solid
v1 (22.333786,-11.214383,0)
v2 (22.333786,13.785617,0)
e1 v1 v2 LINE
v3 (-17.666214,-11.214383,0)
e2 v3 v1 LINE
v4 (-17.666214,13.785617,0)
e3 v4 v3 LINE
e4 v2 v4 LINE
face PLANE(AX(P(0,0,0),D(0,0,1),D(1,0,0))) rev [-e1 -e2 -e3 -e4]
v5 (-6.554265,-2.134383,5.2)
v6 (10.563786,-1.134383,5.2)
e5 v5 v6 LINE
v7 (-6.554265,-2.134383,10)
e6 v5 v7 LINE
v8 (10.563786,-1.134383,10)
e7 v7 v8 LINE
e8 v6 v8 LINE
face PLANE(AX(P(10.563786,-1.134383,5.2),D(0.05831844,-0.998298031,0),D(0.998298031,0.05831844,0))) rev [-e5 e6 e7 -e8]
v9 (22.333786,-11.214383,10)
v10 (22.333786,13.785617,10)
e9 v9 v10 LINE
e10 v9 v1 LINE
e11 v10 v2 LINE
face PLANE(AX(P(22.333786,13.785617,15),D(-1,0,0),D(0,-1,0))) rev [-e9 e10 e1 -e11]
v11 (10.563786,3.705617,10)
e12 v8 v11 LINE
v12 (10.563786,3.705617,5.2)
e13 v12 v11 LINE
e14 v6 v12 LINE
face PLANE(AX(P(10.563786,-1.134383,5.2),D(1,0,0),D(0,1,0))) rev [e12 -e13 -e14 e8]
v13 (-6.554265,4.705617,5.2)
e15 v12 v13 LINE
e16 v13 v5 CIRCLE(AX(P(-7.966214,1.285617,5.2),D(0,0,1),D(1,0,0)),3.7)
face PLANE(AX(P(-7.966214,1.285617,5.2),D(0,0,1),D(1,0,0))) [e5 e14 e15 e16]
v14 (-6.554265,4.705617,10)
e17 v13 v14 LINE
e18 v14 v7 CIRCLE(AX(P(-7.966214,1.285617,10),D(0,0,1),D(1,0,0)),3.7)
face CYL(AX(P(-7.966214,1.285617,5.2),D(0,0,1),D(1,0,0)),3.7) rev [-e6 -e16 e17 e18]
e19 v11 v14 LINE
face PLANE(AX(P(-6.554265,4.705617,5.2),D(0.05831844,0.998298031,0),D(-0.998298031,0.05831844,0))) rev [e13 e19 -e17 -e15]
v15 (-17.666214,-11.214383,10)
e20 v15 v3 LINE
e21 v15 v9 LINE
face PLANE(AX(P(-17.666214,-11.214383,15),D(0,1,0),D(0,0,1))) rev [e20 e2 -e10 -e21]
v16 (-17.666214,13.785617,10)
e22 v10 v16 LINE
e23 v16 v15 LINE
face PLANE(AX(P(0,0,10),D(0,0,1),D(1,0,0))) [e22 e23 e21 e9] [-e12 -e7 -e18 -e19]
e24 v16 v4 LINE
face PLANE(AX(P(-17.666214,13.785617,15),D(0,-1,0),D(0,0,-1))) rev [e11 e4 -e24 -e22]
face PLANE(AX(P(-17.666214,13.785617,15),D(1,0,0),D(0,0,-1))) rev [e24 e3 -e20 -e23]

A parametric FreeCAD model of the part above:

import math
import FreeCAD as App
import Part
import Sketcher
from FreeCAD import Vector
Q = App.Units.Quantity

doc = App.newDocument("Part")
params = doc.addObject("Spreadsheet::Sheet", "Params")
for row, (alias, value) in enumerate([
    ("sketch1_width", "40 mm"),
    ("sketch1_height", "25 mm"),
    ("pad1_length", "15 mm"),
    ("sketch2_width", "25 mm"),
    ("sketch2_height", "12 mm"),
    ("pocket1_length", "5 mm"),
    ("sketch3_radius", "3.7 mm"),
    ("sketch3_height", "4.84 mm"),
    ("pocket2_length", "4.8 mm"),
    ("sketch4_width", "40 mm"),
    ("sketch4_height", "25 mm"),
    ("pocket3_length", "5 mm"),
], start=1):
    params.set(f"A{row}", alias)
    params.set(f"B{row}", "=" + value)
    params.setAlias(f"B{row}", alias)

body = doc.addObject("PartDesign::Body", "Body")

sketch1 = doc.addObject("Sketcher::SketchObject", "Sketch")
body.addObject(sketch1)
sketch1.AttachmentSupport = (doc.XY_Plane, [""])
sketch1.MapMode = "FlatFace"
sketch1.addGeometry([
    Part.LineSegment(Vector(-18, 14, 0), Vector(-18, -11, 0)),
    Part.LineSegment(Vector(-18, -11, 0), Vector(22, -11, 0)),
    Part.LineSegment(Vector(22, -11, 0), Vector(22, 14, 0)),
    Part.LineSegment(Vector(22, 14, 0), Vector(-18, 14, 0)),
], False)
sketch1.addConstraint([
    Sketcher.Constraint("Coincident", 0, 2, 1, 1),
    Sketcher.Constraint("Coincident", 1, 2, 2, 1),
    Sketcher.Constraint("Coincident", 2, 2, 3, 1),
    Sketcher.Constraint("Coincident", 3, 2, 0, 1),
    Sketcher.Constraint("Vertical", 0),
    Sketcher.Constraint("Horizontal", 1),
    Sketcher.Constraint("Vertical", 2),
    Sketcher.Constraint("Horizontal", 3),
    Sketcher.Constraint("DistanceX", 1, 1, 1, 2, Q("40 mm")),
    Sketcher.Constraint("DistanceY", 0, 2, 0, 1, Q("25 mm")),
    Sketcher.Constraint("DistanceX", 0, 2, -1, 1, Q("17.666214 mm")),
    Sketcher.Constraint("DistanceY", 0, 2, -1, 1, Q("11.214383 mm")),
])
sketch1.setExpression("Constraints[8]", "Params.sketch1_width")
sketch1.setExpression("Constraints[9]", "Params.sketch1_height")
pad1 = doc.addObject("PartDesign::Pad", "Pad")
body.addObject(pad1)
pad1.Profile = sketch1
pad1.setExpression("Length", "Params.pad1_length")

sketch2 = doc.addObject("Sketcher::SketchObject", "Sketch001")
body.addObject(sketch2)
sketch2.AttachmentSupport = (doc.XY_Plane, [""])
sketch2.MapMode = "FlatFace"
sketch2.AttachmentOffset = App.Placement(Vector(0, 0, 15), App.Rotation())
sketch2.addGeometry([
    Part.LineSegment(Vector(-13, 7, 0), Vector(-13, -5, 0)),
    Part.LineSegment(Vector(-13, -5, 0), Vector(12, -5, 0)),
    Part.LineSegment(Vector(12, -5, 0), Vector(12, 7, 0)),
    Part.LineSegment(Vector(12, 7, 0), Vector(-13, 7, 0)),
], False)
sketch2.addConstraint([
    Sketcher.Constraint("Coincident", 0, 2, 1, 1),
    Sketcher.Constraint("Coincident", 1, 2, 2, 1),
    Sketcher.Constraint("Coincident", 2, 2, 3, 1),
    Sketcher.Constraint("Coincident", 3, 2, 0, 1),
    Sketcher.Constraint("Vertical", 0),
    Sketcher.Constraint("Horizontal", 1),
    Sketcher.Constraint("Vertical", 2),
    Sketcher.Constraint("Horizontal", 3),
    Sketcher.Constraint("DistanceX", 1, 1, 1, 2, Q("25 mm")),
    Sketcher.Constraint("DistanceY", 0, 2, 0, 1, Q("12 mm")),
    Sketcher.Constraint("DistanceX", 0, 2, -1, 1, Q("12.666214 mm")),
    Sketcher.Constraint("DistanceY", 0, 2, -1, 1, Q("4.714383 mm")),
])
sketch2.setExpression("Constraints[8]", "Params.sketch2_width")
sketch2.setExpression("Constraints[9]", "Params.sketch2_height")
pocket1 = doc.addObject("PartDesign::Pocket", "Pocket")
body.addObject(pocket1)
pocket1.Profile = sketch2
pocket1.setExpression("Length", "Params.pocket1_length")

sketch3 = doc.addObject("Sketcher::SketchObject", "Sketch002")
body.addObject(sketch3)
sketch3.AttachmentSupport = (doc.XY_Plane, [""])
sketch3.MapMode = "FlatFace"
sketch3.AttachmentOffset = App.Placement(Vector(0, 0, 10), App.Rotation())
sketch3.addGeometry([
    Part.LineSegment(Vector(10.6, -1.1, 0), Vector(10.6, 3.7, 0)),
    Part.LineSegment(Vector(10.6, 3.7, 0), Vector(-6.6, 4.7, 0)),
    Part.ArcOfCircle(Part.Circle(Vector(-8, 1.3, 0), Vector(0, 0, 1), 3.7), math.radians(68), math.radians(292)),
    Part.LineSegment(Vector(-6.6, -2.1, 0), Vector(10.6, -1.1, 0)),
], False)
sketch3.addConstraint([
    Sketcher.Constraint("Coincident", 0, 2, 1, 1),
    Sketcher.Constraint("Coincident", 1, 2, 2, 1),
    Sketcher.Constraint("Coincident", 2, 2, 3, 1),
    Sketcher.Constraint("Coincident", 3, 2, 0, 1),
    Sketcher.Constraint("Vertical", 0),
    Sketcher.Constraint("Vertical", 1, 2, 2, 2),
    Sketcher.Constraint("Equal", 1, 3),
    Sketcher.Constraint("Radius", 2, Q("3.7 mm")),
    Sketcher.Constraint("DistanceY", 0, 2, 1, 2, Q("1 mm")),
    Sketcher.Constraint("DistanceY", 0, 1, 0, 2, Q("4.84 mm")),
    Sketcher.Constraint("DistanceX", 2, 3, 0, 2, Q("18.53 mm")),
    Sketcher.Constraint("DistanceX", 2, 3, -1, 1, Q("7.966214 mm")),
    Sketcher.Constraint("DistanceY", -1, 1, 2, 3, Q("1.285617 mm")),
])
sketch3.setExpression("Constraints[7]", "Params.sketch3_radius")
sketch3.setExpression("Constraints[9]", "Params.sketch3_height")
pocket2 = doc.addObject("PartDesign::Pocket", "Pocket001")
body.addObject(pocket2)
pocket2.Profile = sketch3
pocket2.setExpression("Length", "Params.pocket2_length")

sketch4 = doc.addObject("Sketcher::SketchObject", "Sketch003")
body.addObject(sketch4)
sketch4.AttachmentSupport = (doc.XY_Plane, [""])
sketch4.MapMode = "FlatFace"
sketch4.AttachmentOffset = App.Placement(Vector(0, 0, 15), App.Rotation())
sketch4.addGeometry([
    Part.LineSegment(Vector(-18, 14, 0), Vector(-18, -11, 0)),
    Part.LineSegment(Vector(-18, -11, 0), Vector(22, -11, 0)),
    Part.LineSegment(Vector(22, -11, 0), Vector(22, 14, 0)),
    Part.LineSegment(Vector(22, 14, 0), Vector(-18, 14, 0)),
], False)
sketch4.addConstraint([
    Sketcher.Constraint("Coincident", 0, 2, 1, 1),
    Sketcher.Constraint("Coincident", 1, 2, 2, 1),
    Sketcher.Constraint("Coincident", 2, 2, 3, 1),
    Sketcher.Constraint("Coincident", 3, 2, 0, 1),
    Sketcher.Constraint("Vertical", 0),
    Sketcher.Constraint("Horizontal", 1),
    Sketcher.Constraint("Vertical", 2),
    Sketcher.Constraint("Horizontal", 3),
    Sketcher.Constraint("DistanceX", 1, 1, 1, 2, Q("40 mm")),
    Sketcher.Constraint("DistanceY", 0, 2, 0, 1, Q("25 mm")),
    Sketcher.Constraint("DistanceX", 0, 2, -1, 1, Q("17.666214 mm")),
    Sketcher.Constraint("DistanceY", 0, 2, -1, 1, Q("11.214383 mm")),
])
sketch4.setExpression("Constraints[8]", "Params.sketch4_width")
sketch4.setExpression("Constraints[9]", "Params.sketch4_height")
pocket3 = doc.addObject("PartDesign::Pocket", "Pocket002")
body.addObject(pocket3)
pocket3.Profile = sketch4
pocket3.setExpression("Length", "Params.pocket3_length")

doc.recompute()
